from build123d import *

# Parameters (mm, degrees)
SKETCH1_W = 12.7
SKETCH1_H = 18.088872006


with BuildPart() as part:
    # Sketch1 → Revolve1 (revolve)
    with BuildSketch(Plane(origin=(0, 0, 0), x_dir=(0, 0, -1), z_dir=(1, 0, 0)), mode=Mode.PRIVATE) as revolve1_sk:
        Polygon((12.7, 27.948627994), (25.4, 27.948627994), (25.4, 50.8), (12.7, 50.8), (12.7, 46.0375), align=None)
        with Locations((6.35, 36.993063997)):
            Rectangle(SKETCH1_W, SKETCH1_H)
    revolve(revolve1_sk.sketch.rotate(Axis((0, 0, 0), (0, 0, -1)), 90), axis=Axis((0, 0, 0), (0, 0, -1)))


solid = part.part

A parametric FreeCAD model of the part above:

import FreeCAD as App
import Part
import Sketcher

V = App.Vector
Q = App.Units.Quantity

doc = App.newDocument("Part")
body = doc.addObject("PartDesign::Body", "Body")

# Sketch on YZ plane
sketch1 = body.newObject("Sketcher::SketchObject", "Sketch")
sketch1.AttachmentSupport = (doc.getObject("YZ_Plane"), [""])
sketch1.MapMode = "FlatFace"
sketch1.addGeometry(Part.LineSegment(V(27.9, -25.4, 0), V(50.8, -25.4, 0)), False)
sketch1.addGeometry(Part.LineSegment(V(50.8, -25.4, 0), V(50.8, -12.7, 0)), False)
sketch1.addGeometry(Part.LineSegment(V(50.8, -12.7, 0), V(46, -12.7, 0)), False)
sketch1.addGeometry(Part.LineSegment(V(46, -12.7, 0), V(46, 0, 0)), False)
sketch1.addGeometry(Part.LineSegment(V(46, 0, 0), V(27.9, 0, 0)), False)
sketch1.addGeometry(Part.LineSegment(V(27.9, 0, 0), V(27.9, -25.4, 0)), False)
sketch1.addConstraint(Sketcher.Constraint("Coincident", 0, 2, 1, 1))
sketch1.addConstraint(Sketcher.Constraint("Coincident", 1, 2, 2, 1))
sketch1.addConstraint(Sketcher.Constraint("Coincident", 2, 2, 3, 1))
sketch1.addConstraint(Sketcher.Constraint("Coincident", 3, 2, 4, 1))
sketch1.addConstraint(Sketcher.Constraint("Coincident", 4, 2, 5, 1))
sketch1.addConstraint(Sketcher.Constraint("Coincident", 5, 2, 0, 1))
sketch1.addConstraint(Sketcher.Constraint("Horizontal", 0))
sketch1.addConstraint(Sketcher.Constraint("Vertical", 1))
sketch1.addConstraint(Sketcher.Constraint("Horizontal", 2))
sketch1.addConstraint(Sketcher.Constraint("Vertical", 3))
sketch1.addConstraint(Sketcher.Constraint("Horizontal", 4))
sketch1.addConstraint(Sketcher.Constraint("Vertical", 5))
sketch1.addConstraint(Sketcher.Constraint("PointOnObject", 3, 2, -1))
sketch1.addConstraint(Sketcher.Constraint("Equal", 1, 3))
sketch1.addConstraint(Sketcher.Constraint("DistanceY", 5, 2, 5, 1, Q("1 in")))
sketch1.addConstraint(Sketcher.Constraint("DistanceX", -1, 1, 0, 2, Q("2 in")))
sketch1.addConstraint(Sketcher.Constraint("DistanceX", 2, 2, 2, 1, Q("0.1875 in")))
sketch1.addConstraint(Sketcher.Constraint("DistanceX", 0, 1, 0, 2, Q("22.851372 mm")))
revolution = body.newObject("PartDesign::Revolution", "Revolution")
revolution.Profile = sketch1
revolution.ReferenceAxis = (sketch1, ["V_Axis"])
revolution.Angle = 360

doc.recompute()
